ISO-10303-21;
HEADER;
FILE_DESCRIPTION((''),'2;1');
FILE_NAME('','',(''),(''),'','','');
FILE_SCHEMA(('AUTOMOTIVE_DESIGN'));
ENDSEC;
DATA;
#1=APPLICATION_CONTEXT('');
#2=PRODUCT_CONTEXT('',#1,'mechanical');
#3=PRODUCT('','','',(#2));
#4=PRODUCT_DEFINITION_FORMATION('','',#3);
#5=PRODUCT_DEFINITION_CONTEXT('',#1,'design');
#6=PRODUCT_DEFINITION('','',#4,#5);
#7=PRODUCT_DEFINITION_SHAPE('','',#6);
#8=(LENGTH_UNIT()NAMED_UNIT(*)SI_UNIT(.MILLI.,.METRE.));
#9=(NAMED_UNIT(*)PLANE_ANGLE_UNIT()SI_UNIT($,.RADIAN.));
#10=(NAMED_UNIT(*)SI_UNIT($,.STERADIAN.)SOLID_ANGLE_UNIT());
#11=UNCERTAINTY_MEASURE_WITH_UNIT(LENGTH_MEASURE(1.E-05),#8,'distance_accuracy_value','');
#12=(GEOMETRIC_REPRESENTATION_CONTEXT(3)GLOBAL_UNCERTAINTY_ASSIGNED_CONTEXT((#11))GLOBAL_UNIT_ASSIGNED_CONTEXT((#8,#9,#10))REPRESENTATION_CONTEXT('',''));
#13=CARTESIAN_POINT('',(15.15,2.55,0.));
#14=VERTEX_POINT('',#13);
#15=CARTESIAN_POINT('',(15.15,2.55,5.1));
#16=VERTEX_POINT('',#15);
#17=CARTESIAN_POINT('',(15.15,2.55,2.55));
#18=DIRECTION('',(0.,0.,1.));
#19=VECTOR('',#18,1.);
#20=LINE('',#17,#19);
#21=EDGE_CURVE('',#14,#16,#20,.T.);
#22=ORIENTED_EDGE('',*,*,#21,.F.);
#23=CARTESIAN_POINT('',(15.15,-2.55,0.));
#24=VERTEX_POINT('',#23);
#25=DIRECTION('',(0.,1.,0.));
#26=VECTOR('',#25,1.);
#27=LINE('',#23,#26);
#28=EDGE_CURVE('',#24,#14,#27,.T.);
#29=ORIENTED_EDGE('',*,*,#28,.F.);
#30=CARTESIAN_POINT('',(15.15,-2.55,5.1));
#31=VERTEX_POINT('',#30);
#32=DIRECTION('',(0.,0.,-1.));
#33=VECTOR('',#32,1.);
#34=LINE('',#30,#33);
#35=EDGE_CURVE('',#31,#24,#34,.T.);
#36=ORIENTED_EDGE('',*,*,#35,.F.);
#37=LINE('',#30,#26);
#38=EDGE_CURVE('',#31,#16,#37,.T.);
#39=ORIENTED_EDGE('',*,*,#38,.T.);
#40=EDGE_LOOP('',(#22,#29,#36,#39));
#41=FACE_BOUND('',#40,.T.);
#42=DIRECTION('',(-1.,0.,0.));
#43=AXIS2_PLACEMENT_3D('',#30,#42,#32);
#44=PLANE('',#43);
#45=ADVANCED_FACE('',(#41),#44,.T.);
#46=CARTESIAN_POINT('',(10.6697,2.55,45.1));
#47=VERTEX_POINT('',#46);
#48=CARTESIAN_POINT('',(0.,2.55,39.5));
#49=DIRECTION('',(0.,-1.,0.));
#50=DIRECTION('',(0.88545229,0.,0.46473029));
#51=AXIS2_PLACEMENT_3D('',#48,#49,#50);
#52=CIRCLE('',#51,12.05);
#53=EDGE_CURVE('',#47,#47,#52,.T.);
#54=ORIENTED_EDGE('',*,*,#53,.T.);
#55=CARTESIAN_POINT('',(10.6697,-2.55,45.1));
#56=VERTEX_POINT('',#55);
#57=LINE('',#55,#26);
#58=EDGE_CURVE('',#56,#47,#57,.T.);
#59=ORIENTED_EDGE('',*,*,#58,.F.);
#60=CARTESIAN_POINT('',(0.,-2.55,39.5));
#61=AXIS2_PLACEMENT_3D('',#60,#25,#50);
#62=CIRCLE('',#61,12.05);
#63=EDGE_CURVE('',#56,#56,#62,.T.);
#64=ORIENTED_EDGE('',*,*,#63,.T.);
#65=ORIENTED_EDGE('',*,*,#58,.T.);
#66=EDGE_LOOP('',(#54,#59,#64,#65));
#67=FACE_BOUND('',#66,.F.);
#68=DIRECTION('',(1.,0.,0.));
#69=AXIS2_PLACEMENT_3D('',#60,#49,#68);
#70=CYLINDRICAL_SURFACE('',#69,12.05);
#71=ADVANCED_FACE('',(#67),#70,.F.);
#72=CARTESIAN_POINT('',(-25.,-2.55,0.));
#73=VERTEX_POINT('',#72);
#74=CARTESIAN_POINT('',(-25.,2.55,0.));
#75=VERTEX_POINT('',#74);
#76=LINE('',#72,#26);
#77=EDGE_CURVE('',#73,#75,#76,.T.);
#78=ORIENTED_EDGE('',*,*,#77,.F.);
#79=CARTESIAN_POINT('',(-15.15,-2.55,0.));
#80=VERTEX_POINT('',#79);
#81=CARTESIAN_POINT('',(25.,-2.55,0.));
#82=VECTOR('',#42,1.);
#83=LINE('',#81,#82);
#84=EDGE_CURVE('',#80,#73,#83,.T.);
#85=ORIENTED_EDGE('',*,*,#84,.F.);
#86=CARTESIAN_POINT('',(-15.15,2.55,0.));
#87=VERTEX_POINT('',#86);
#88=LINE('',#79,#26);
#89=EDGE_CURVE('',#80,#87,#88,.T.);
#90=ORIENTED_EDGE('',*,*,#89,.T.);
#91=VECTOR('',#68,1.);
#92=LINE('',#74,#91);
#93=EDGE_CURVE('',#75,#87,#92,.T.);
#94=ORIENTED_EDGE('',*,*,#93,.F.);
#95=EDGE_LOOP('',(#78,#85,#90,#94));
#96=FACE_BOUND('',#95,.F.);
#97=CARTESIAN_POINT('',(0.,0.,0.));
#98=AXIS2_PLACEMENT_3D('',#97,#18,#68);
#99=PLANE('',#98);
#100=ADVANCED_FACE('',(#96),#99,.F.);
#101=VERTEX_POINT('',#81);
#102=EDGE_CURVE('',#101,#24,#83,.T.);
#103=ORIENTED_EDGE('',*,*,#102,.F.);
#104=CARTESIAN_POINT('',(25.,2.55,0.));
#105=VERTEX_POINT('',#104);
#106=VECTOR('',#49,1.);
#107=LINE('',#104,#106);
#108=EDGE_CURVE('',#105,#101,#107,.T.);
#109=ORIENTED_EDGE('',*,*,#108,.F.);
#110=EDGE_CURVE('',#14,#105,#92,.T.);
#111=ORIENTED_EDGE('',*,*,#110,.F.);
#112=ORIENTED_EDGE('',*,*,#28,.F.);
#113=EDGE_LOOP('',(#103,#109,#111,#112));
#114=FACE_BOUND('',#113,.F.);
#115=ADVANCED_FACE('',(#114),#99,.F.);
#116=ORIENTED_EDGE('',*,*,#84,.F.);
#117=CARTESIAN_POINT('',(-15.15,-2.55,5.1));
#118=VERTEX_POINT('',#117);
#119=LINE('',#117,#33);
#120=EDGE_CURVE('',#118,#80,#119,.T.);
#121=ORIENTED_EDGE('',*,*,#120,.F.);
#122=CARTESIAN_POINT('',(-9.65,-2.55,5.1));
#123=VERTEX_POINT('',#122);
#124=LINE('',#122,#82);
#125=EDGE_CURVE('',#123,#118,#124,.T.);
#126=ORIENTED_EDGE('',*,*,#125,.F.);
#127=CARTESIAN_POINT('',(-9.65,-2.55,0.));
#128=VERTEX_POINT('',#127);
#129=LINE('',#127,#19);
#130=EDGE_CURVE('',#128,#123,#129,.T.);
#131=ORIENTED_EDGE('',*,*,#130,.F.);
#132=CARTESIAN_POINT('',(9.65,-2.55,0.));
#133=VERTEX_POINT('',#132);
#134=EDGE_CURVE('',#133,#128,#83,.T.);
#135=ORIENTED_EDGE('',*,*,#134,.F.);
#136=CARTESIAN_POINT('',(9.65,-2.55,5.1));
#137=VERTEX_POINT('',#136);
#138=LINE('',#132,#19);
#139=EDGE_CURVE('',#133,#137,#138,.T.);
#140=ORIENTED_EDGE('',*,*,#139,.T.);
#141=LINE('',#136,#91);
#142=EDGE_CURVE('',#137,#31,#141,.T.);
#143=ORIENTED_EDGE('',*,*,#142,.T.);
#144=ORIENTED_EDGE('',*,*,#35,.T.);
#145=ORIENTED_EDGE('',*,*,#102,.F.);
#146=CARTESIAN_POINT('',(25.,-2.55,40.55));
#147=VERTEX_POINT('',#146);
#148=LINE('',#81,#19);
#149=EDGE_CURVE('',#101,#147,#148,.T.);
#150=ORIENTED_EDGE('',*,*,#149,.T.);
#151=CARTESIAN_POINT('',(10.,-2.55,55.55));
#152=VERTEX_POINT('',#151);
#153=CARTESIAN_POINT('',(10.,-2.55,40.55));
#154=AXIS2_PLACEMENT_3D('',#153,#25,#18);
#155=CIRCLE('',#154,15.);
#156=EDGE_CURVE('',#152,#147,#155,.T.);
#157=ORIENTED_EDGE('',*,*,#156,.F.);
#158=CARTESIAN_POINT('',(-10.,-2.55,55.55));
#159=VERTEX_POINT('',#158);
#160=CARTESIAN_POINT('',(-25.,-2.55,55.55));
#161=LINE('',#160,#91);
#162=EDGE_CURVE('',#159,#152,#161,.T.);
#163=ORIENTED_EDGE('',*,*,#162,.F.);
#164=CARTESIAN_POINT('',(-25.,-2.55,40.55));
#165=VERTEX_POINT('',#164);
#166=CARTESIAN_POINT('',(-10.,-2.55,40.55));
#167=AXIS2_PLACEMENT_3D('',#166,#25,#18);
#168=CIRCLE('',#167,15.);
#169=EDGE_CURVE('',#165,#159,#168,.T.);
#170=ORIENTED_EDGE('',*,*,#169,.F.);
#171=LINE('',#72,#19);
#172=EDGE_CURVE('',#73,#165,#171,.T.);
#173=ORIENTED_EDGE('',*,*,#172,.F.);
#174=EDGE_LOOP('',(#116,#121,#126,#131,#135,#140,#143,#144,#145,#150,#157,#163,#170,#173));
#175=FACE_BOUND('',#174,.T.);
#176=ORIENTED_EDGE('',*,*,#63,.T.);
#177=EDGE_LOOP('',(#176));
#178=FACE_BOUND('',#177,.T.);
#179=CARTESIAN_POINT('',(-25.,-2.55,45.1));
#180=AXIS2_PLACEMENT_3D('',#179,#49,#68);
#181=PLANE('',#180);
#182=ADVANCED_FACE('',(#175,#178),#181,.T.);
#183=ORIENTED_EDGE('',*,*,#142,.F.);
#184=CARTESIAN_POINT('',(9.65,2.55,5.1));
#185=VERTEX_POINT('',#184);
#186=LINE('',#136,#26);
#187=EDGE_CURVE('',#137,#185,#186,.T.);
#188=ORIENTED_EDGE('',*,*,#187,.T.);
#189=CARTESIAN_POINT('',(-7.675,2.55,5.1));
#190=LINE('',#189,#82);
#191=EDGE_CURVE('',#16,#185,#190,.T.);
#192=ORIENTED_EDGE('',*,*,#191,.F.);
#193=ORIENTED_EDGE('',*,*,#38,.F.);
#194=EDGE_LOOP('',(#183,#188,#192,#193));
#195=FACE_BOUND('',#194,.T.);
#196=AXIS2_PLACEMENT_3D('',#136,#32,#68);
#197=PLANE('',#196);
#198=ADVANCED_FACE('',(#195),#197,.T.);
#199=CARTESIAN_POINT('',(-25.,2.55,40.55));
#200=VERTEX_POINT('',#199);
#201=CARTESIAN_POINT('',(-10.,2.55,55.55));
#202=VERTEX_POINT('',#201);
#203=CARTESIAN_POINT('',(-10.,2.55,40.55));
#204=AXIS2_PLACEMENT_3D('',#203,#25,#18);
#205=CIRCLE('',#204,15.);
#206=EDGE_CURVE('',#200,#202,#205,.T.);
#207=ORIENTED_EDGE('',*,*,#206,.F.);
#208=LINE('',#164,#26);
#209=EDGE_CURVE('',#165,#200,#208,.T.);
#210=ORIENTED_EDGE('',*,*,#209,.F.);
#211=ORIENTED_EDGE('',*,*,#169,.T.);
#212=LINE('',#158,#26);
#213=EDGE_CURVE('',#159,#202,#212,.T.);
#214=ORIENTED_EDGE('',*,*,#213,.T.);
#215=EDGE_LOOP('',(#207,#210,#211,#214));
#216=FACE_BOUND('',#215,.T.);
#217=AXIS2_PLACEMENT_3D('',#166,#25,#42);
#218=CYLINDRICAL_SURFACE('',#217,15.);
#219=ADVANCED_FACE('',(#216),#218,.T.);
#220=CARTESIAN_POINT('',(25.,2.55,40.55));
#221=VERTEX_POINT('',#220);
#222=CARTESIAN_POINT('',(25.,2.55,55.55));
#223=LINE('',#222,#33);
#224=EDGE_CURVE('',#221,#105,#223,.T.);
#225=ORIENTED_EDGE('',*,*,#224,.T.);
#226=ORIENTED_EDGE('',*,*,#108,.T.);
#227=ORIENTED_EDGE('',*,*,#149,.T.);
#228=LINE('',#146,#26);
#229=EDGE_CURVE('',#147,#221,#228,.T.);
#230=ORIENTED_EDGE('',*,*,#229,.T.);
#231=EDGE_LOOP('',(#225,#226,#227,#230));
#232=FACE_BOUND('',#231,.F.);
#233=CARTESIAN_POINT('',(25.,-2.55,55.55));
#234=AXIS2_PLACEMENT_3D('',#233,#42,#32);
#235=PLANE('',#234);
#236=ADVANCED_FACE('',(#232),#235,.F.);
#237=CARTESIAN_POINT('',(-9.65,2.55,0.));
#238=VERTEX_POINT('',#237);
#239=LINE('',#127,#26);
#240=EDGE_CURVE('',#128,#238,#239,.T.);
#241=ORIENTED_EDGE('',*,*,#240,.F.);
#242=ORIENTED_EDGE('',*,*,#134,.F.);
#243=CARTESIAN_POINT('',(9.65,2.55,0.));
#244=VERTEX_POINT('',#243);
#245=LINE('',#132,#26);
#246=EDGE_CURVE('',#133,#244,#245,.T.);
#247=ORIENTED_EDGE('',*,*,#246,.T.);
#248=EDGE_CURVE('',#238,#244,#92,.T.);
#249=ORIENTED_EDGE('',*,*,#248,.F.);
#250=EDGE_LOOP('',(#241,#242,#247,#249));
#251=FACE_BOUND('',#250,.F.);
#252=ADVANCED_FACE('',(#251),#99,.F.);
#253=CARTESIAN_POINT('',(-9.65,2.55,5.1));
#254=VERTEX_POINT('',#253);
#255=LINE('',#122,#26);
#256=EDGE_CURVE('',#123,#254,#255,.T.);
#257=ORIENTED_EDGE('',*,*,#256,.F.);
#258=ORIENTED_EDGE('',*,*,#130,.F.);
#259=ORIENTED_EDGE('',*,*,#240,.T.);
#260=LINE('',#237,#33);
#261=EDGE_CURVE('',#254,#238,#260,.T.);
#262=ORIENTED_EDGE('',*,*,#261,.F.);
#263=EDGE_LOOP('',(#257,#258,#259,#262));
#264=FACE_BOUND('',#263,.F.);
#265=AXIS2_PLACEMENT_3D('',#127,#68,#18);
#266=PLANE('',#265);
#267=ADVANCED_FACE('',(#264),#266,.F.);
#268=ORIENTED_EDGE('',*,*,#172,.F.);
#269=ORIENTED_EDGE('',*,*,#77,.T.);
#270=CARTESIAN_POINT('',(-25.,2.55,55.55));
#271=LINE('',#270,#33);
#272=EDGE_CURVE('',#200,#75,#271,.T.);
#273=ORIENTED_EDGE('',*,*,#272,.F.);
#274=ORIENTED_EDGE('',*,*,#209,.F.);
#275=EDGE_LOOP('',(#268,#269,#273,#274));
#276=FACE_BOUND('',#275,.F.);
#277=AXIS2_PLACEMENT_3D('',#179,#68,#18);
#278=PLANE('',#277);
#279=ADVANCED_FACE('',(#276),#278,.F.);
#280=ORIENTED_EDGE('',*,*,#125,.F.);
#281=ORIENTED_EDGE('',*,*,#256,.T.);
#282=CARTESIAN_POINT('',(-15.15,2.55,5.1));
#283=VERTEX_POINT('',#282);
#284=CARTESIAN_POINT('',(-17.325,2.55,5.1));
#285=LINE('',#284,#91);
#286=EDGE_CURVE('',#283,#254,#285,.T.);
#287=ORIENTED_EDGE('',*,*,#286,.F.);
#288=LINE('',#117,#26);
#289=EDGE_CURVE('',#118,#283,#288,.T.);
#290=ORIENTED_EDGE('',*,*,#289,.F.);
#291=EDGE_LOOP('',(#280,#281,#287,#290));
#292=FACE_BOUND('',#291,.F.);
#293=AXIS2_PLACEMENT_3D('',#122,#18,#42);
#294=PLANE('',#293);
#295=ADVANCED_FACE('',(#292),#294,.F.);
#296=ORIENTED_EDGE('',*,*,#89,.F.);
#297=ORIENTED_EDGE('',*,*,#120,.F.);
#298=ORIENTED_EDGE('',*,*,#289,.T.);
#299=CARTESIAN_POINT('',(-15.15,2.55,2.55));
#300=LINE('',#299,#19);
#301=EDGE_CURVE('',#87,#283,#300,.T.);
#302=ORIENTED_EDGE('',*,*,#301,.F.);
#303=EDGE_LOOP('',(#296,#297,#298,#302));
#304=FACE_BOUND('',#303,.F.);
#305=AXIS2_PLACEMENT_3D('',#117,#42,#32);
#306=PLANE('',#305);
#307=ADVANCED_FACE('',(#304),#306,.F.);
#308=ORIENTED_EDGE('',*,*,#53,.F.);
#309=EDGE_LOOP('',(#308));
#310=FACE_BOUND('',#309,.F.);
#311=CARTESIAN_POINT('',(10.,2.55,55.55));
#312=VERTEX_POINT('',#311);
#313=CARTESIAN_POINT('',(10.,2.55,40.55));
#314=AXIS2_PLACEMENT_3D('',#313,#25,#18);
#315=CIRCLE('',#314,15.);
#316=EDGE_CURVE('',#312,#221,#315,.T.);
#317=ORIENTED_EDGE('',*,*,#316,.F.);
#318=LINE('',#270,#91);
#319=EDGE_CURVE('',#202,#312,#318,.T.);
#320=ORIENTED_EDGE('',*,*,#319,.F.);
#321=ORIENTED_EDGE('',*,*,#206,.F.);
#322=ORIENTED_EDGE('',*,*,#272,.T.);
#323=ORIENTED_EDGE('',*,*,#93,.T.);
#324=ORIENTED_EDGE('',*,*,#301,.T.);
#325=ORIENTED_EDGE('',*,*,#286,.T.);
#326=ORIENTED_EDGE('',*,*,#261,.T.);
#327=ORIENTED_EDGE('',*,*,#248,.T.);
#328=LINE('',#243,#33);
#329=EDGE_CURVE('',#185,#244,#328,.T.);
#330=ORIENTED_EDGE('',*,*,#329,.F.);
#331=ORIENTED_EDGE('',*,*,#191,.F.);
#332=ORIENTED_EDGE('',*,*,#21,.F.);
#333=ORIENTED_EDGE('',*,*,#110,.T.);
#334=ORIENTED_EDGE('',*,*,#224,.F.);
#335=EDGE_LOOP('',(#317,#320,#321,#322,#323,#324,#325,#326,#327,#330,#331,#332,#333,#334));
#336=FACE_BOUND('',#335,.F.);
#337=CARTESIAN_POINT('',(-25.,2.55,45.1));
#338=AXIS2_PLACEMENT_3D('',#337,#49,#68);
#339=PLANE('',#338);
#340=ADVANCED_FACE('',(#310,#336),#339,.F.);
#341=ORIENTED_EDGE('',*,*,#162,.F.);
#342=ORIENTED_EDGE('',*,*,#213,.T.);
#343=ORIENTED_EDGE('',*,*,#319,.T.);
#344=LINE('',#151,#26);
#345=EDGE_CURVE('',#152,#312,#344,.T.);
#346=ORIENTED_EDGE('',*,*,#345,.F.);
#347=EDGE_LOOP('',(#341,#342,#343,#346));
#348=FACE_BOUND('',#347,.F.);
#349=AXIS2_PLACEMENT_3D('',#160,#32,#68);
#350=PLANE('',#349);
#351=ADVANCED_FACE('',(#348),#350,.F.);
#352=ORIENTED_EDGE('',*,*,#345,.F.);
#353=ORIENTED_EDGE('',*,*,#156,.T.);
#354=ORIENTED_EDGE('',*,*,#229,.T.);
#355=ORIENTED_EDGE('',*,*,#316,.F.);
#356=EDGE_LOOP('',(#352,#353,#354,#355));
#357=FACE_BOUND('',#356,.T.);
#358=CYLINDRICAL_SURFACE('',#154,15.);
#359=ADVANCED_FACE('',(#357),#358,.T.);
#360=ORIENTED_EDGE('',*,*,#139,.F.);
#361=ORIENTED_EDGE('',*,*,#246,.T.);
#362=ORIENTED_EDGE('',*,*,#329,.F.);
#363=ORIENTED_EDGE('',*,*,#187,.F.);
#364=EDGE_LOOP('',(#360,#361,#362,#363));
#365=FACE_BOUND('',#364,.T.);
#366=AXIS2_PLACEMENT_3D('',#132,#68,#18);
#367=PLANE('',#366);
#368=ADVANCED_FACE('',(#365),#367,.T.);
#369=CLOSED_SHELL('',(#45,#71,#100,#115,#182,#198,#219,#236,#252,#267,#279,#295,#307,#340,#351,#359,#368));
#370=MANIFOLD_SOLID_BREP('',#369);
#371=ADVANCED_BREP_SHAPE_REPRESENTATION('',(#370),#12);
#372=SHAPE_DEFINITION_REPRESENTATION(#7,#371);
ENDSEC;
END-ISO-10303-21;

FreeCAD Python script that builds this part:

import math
import FreeCAD as App
import Part
import Sketcher


def edges_at(feature, points):
    """Names of the edges that pass closest to the given points."""
    edges = feature.Shape.Edges
    near = lambda p: min(range(len(edges)), key=lambda i: edges[i].distToShape(Part.Vertex(*p))[0])
    return sorted({f"Edge{near(p) + 1}" for p in points})


def add_polygon(sketch, points):
    """Adds a closed chain of lines whose ends are joined by coincident constraints."""
    first, n = sketch.GeometryCount, len(points)
    for a, b in zip(points, points[1:] + points[:1]):
        sketch.addGeometry(Part.LineSegment(App.Vector(*a, 0), App.Vector(*b, 0)), False)
    for i in range(n):
        sketch.addConstraint(Sketcher.Constraint("Coincident", first + i, 2, first + (i + 1) % n, 1))

doc = App.newDocument("Part")
body = doc.addObject("PartDesign::Body", "Body")

sketch1 = body.newObject("Sketcher::SketchObject", "Sketch")
sketch1.AttachmentSupport = (doc.getObject("XY_Plane"), [""])
sketch1.MapMode = "FlatFace"
add_polygon(sketch1, [(-25, -3), (25, -3), (25, 3), (-25, 3)])
sketch1.addConstraint([
    Sketcher.Constraint("Horizontal", 0),
    Sketcher.Constraint("Vertical", 1),
    Sketcher.Constraint("Horizontal", 2),
    Sketcher.Constraint("Vertical", 3),
    Sketcher.Constraint("Symmetric", 0, 2, 2, 2, -1, 1),
    Sketcher.Constraint("DistanceX", 0, 1, 0, 2, 50.0),
    Sketcher.Constraint("DistanceY", 1, 1, 1, 2, 5.1),
])
pad1 = body.newObject("PartDesign::Pad", "Pad")
pad1.Profile = sketch1
pad1.Length = 45.1

sketch2 = body.newObject("Sketcher::SketchObject", "Sketch001")
sketch2.AttachmentSupport = (doc.getObject("XZ_Plane"), [""])
sketch2.MapMode = "FlatFace"
sketch2.AttachmentOffset = App.Placement(App.Vector(0, 0, 2.55), App.Rotation())
add_polygon(sketch2, [(-15, 0), (-10, 0), (-10, 5), (-15, 5)])
add_polygon(sketch2, [(10, 0), (15, 0), (15, 5), (10, 5)])
sketch2.addConstraint([
    Sketcher.Constraint("Horizontal", 0),
    Sketcher.Constraint("Vertical", 1),
    Sketcher.Constraint("Horizontal", 2),
    Sketcher.Constraint("Vertical", 3),
    Sketcher.Constraint("Horizontal", 4),
    Sketcher.Constraint("Vertical", 5),
    Sketcher.Constraint("Horizontal", 6),
    Sketcher.Constraint("Vertical", 7),
    Sketcher.Constraint("Symmetric", 3, 2, 4, 2, -1, 1),
    Sketcher.Constraint("Symmetric", 1, 2, 6, 2, -2),
    Sketcher.Constraint("PointOnObject", 0, 2, -1),
    Sketcher.Constraint("DistanceX", 0, 1, 0, 2, 5.5),
    Sketcher.Constraint("DistanceY", 1, 1, 1, 2, 5.1),
    Sketcher.Constraint("DistanceX", 0, 2, 4, 2, 24.8),
])
pocket1 = body.newObject("PartDesign::Pocket", "Pocket")
pocket1.Profile = sketch2
pocket1.Length = 45.1

sketch3 = body.newObject("Sketcher::SketchObject", "Sketch002")
sketch3.AttachmentSupport = (doc.getObject("XZ_Plane"), [""])
sketch3.MapMode = "FlatFace"
sketch3.AttachmentOffset = App.Placement(App.Vector(0, 0, 2.55), App.Rotation())
sketch3.addGeometry([
    Part.LineSegment(App.Vector(11, 45, 0), App.Vector(-11, 45, 0)),
    Part.ArcOfCircle(Part.Circle(App.Vector(0, 40, 0), App.Vector(0, 0, 1), 12), math.radians(152), math.radians(388)),
], False)
sketch3.addConstraint([
    Sketcher.Constraint("Coincident", 0, 1, 1, 2),
    Sketcher.Constraint("Coincident", 1, 1, 0, 2),
    Sketcher.Constraint("Horizontal", 0),
    Sketcher.Constraint("PointOnObject", 1, 3, -2),
    Sketcher.Constraint("Radius", 1, 12.05),
    Sketcher.Constraint("DistanceY", 1, 3, 0, 1, 5.6),
    Sketcher.Constraint("DistanceY", -1, 1, 1, 3, 39.5),
])
pocket2 = body.newObject("PartDesign::Pocket", "Pocket001")
pocket2.Profile = sketch3
pocket2.Length = 45.1

sketch4 = body.newObject("Sketcher::SketchObject", "Sketch003")
sketch4.AttachmentSupport = (doc.getObject("XZ_Plane"), [""])
sketch4.MapMode = "FlatFace"
sketch4.AttachmentOffset = App.Placement(App.Vector(0, 0, 2.55), App.Rotation())
sketch4.addGeometry([
    Part.LineSegment(App.Vector(-25, 56, 0), App.Vector(-25, 45, 0)),
    Part.LineSegment(App.Vector(-25, 45, 0), App.Vector(-11, 45, 0)),
    Part.ArcOfCircle(Part.Circle(App.Vector(0, 40, 0), App.Vector(0, 0, 1), 12), math.radians(28), math.radians(152)),
    Part.LineSegment(App.Vector(11, 45, 0), App.Vector(25, 45, 0)),
    Part.LineSegment(App.Vector(25, 45, 0), App.Vector(25, 56, 0)),
    Part.LineSegment(App.Vector(25, 56, 0), App.Vector(-25, 56, 0)),
], False)
sketch4.addConstraint([
    Sketcher.Constraint("Coincident", 0, 2, 1, 1),
    Sketcher.Constraint("Coincident", 1, 2, 2, 2),
    Sketcher.Constraint("Coincident", 2, 1, 3, 1),
    Sketcher.Constraint("Coincident", 3, 2, 4, 1),
    Sketcher.Constraint("Coincident", 4, 2, 5, 1),
    Sketcher.Constraint("Coincident", 5, 2, 0, 1),
    Sketcher.Constraint("Vertical", 0),
    Sketcher.Constraint("Horizontal", 1),
    Sketcher.Constraint("Horizontal", 3),
    Sketcher.Constraint("Vertical", 4),
    Sketcher.Constraint("Horizontal", 5),
    Sketcher.Constraint("Symmetric", 1, 2, 2, 1, -2),
    Sketcher.Constraint("Equal", 1, 3),
    Sketcher.Constraint("Radius", 2, 12.05),
    Sketcher.Constraint("DistanceX", 0, 2, -1, 1, 25.0),
    Sketcher.Constraint("DistanceY", 2, 3, 0, 2, 5.6),
    Sketcher.Constraint("DistanceY", 2, 3, 4, 2, 16.05),
    Sketcher.Constraint("DistanceY", -1, 1, 2, 3, 39.5),
])
pad2 = body.newObject("PartDesign::Pad", "Pad001")
pad2.Profile = sketch4
pad2.Length = 5.1
pad2.Reversed = True
doc.recompute()

fillet = body.newObject("PartDesign::Fillet", "Fillet")
fillet.Base = (pad2, edges_at(pad2, [(25, 0, 55.55), (-25, 0, 55.55)]))
fillet.Radius = 15

doc.recompute()
